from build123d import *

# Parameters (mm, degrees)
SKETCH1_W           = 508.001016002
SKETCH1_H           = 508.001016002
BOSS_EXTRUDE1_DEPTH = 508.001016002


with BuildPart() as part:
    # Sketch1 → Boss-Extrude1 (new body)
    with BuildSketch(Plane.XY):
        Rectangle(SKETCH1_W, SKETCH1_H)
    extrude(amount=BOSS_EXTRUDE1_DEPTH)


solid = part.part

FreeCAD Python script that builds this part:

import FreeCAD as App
import Part
import Sketcher

V = App.Vector

doc = App.newDocument("Part")
params = doc.addObject("Spreadsheet::Sheet", "Params")
for row, (alias, value) in enumerate([
    ("pad1_length", "508.001016 mm"),
], start=1):
    params.set(f"A{row}", alias)
    params.set(f"B{row}", "=" + value)
    params.setAlias(f"B{row}", alias)

body = doc.addObject("PartDesign::Body", "Body")

# Sketch on XY plane
sketch1 = doc.addObject("Sketcher::SketchObject", "Sketch")
body.addObject(sketch1)
sketch1.AttachmentSupport = (doc.XY_Plane, [""])
sketch1.MapMode = "FlatFace"
sketch1.addGeometry([
    Part.LineSegment(V(-254, 254, 0), V(-254, -254, 0)),
    Part.LineSegment(V(-254, -254, 0), V(254, -254, 0)),
    Part.LineSegment(V(254, -254, 0), V(254, 254, 0)),
    Part.LineSegment(V(254, 254, 0), V(-254, 254, 0)),
], False)
sketch1.addConstraint([
    Sketcher.Constraint("Coincident", 0, 2, 1, 1),
    Sketcher.Constraint("Coincident", 1, 2, 2, 1),
    Sketcher.Constraint("Coincident", 2, 2, 3, 1),
    Sketcher.Constraint("Coincident", 3, 2, 0, 1),
    Sketcher.Constraint("Vertical", 0),
    Sketcher.Constraint("Horizontal", 1),
    Sketcher.Constraint("Vertical", 2),
    Sketcher.Constraint("Horizontal", 3),
    Sketcher.Constraint("Symmetric", 0, 2, 2, 2, -1, 1),
    Sketcher.Constraint("Equal", 3, 0),
    Sketcher.Constraint("DistanceX", 1, 1, 1, 2, 508.001016),
])
pad1 = doc.addObject("PartDesign::Pad", "Pad")
body.addObject(pad1)
pad1.Profile = sketch1
pad1.setExpression("Length", "Params.pad1_length")

doc.recompute()
